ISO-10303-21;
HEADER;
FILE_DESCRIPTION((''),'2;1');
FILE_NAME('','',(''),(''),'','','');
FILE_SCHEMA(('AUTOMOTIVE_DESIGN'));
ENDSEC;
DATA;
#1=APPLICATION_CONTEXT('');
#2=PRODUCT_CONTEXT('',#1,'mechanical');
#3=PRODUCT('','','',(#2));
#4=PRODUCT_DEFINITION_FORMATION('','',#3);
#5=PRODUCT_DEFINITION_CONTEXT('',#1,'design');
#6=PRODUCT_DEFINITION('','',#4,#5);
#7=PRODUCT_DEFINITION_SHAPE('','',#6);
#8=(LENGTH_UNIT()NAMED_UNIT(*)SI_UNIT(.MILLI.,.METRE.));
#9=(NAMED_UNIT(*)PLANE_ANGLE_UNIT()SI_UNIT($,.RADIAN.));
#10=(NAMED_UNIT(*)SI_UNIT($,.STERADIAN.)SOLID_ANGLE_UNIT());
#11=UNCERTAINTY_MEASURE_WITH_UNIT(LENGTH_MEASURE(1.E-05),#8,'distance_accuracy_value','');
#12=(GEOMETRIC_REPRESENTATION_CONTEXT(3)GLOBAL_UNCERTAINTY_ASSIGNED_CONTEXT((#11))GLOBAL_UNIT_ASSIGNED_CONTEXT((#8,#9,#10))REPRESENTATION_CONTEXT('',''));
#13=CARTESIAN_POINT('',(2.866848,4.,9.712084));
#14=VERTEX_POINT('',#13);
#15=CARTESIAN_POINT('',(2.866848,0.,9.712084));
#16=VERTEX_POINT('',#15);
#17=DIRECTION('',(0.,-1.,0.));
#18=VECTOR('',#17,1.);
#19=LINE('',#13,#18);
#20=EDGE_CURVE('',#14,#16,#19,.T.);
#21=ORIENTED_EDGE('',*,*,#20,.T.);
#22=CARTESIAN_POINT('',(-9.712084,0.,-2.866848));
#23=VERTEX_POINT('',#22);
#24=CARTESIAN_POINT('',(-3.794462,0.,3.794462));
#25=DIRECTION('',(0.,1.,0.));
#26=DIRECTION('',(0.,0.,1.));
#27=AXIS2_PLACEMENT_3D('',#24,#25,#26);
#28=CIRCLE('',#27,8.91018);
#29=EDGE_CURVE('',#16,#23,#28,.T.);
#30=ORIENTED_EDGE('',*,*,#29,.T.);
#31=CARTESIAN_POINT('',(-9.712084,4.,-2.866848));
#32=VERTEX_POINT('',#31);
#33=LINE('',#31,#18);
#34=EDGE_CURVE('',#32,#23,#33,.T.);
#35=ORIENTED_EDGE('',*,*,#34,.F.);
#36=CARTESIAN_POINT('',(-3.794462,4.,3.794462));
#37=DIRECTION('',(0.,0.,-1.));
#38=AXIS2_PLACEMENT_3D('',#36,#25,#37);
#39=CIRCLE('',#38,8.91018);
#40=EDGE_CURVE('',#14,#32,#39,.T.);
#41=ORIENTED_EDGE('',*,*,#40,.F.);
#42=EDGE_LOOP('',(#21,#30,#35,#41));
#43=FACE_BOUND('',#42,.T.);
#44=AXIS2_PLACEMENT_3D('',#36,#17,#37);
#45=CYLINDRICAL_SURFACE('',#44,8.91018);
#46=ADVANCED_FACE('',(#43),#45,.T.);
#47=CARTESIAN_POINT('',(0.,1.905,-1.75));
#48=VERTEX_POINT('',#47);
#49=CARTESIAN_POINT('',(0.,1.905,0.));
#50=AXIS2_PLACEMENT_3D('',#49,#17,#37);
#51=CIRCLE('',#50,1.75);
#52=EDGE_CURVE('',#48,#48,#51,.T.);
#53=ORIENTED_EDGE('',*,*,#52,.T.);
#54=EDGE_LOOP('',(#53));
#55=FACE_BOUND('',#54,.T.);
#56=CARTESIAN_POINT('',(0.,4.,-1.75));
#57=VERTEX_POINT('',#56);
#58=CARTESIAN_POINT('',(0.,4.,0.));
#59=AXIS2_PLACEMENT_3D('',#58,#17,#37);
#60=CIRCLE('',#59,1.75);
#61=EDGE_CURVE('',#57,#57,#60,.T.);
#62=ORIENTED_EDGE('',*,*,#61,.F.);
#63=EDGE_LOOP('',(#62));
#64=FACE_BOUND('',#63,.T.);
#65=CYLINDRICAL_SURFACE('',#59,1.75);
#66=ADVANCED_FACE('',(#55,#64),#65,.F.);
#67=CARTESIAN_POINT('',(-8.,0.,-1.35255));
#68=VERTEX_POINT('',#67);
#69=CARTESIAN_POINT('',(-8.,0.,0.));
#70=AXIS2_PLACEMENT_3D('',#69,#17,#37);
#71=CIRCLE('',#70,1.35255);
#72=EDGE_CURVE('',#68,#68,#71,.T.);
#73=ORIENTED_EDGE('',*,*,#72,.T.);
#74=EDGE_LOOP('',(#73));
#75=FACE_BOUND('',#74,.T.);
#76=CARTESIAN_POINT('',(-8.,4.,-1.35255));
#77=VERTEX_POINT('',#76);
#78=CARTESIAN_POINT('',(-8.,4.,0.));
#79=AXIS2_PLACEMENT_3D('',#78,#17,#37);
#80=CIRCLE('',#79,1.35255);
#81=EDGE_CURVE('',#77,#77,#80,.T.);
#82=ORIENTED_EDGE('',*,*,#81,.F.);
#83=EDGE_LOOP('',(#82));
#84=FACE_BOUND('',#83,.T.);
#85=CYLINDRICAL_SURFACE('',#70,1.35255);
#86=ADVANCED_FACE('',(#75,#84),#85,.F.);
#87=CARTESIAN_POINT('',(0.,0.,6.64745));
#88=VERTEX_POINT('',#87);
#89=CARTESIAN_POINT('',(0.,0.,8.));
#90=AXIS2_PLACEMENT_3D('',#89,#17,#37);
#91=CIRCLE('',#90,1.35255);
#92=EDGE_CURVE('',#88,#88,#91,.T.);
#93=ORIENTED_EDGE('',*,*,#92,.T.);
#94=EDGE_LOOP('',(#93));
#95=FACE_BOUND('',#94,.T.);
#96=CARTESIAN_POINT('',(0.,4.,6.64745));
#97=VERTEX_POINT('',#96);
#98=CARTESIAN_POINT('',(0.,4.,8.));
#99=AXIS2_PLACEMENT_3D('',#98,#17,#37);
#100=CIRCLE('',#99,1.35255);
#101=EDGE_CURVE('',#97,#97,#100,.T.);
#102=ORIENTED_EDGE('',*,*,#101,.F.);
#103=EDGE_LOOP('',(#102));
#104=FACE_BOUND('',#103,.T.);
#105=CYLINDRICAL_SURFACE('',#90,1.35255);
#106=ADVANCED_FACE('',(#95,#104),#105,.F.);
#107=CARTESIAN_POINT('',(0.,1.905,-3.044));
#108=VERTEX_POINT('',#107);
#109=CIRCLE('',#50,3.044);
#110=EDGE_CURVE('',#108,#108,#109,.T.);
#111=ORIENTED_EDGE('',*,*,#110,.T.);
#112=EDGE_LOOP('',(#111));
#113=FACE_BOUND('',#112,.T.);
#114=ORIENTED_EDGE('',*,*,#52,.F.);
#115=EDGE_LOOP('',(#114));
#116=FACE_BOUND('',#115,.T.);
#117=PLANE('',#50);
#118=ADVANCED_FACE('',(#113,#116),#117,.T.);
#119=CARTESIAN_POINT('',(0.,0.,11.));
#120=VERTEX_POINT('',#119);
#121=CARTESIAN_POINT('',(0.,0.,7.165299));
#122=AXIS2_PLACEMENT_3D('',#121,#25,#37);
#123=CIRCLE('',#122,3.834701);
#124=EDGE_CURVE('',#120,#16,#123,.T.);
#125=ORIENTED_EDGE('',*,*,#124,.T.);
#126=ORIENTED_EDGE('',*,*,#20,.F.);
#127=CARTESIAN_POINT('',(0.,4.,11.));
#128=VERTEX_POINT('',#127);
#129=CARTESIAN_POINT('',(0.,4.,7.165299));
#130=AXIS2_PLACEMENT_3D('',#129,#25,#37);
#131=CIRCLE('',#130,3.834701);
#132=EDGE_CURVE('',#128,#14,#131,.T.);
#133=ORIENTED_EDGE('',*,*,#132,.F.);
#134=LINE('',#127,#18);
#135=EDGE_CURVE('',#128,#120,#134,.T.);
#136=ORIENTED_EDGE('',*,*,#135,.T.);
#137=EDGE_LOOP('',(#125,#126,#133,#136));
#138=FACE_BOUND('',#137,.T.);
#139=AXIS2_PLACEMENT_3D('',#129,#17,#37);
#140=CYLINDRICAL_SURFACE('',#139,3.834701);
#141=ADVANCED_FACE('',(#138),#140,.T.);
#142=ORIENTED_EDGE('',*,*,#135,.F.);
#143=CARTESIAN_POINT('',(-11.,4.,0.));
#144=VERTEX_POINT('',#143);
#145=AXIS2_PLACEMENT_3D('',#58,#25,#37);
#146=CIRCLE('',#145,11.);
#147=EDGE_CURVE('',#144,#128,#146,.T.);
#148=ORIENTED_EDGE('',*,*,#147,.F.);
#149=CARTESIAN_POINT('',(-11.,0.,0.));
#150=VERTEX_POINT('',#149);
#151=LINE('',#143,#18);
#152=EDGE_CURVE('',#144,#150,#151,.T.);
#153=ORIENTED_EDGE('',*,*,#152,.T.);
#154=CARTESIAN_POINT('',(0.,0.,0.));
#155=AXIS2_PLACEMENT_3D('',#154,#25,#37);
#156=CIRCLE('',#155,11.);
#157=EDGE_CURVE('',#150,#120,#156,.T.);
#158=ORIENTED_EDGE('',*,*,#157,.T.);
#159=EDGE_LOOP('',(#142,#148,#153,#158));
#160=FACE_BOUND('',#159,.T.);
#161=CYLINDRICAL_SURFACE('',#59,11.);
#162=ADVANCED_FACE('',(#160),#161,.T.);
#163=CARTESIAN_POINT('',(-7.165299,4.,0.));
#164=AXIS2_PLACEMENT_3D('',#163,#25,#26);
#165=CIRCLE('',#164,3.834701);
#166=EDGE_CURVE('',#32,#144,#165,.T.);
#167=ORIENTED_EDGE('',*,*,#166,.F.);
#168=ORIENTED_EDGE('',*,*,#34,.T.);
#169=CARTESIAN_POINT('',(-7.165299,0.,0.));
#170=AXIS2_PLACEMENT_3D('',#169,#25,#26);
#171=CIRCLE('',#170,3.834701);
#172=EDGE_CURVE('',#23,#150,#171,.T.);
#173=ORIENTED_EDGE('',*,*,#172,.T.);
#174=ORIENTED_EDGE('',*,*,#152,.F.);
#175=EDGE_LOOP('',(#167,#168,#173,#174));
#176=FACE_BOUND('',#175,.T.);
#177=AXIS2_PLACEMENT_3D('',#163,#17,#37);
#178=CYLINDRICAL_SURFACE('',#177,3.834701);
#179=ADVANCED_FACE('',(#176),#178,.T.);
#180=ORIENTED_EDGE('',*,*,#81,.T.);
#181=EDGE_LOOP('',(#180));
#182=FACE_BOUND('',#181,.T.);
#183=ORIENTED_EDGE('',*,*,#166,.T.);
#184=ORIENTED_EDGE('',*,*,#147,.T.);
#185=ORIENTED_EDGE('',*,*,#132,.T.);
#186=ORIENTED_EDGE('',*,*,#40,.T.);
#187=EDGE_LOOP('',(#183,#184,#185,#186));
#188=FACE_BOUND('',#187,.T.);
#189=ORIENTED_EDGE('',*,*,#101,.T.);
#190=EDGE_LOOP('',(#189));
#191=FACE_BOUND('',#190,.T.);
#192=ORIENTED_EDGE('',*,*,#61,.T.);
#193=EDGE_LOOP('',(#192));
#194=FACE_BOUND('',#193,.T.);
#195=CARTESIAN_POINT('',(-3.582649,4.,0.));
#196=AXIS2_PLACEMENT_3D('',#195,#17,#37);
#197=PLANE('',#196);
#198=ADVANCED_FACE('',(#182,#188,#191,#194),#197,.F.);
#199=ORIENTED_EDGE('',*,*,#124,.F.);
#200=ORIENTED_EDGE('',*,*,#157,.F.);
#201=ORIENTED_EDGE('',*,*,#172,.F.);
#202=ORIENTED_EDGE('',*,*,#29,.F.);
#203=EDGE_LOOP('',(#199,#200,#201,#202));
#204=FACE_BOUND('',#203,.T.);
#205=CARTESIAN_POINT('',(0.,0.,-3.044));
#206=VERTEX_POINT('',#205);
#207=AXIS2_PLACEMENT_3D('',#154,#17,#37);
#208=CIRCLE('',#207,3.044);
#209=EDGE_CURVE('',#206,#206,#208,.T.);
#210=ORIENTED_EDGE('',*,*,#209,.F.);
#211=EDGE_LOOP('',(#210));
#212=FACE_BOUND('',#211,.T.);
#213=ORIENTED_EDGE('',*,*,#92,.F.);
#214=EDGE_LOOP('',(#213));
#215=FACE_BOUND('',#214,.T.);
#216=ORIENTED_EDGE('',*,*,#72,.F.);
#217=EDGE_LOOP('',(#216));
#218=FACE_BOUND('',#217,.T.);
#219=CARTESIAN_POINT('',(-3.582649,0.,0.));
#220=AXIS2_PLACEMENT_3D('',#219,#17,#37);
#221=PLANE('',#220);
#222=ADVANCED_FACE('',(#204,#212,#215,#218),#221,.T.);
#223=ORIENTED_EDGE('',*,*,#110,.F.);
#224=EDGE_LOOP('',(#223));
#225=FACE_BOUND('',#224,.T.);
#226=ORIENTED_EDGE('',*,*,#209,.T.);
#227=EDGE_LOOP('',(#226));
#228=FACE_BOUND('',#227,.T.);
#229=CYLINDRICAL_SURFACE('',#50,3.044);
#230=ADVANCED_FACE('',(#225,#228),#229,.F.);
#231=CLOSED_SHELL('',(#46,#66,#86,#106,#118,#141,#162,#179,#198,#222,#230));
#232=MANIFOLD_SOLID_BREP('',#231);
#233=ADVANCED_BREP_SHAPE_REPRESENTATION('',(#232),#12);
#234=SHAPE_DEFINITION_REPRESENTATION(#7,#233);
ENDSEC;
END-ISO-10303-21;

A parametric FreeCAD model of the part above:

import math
import FreeCAD as App
import Part
import Sketcher
from FreeCAD import Vector
Q = App.Units.Quantity

doc = App.newDocument("Part")
body = doc.addObject("PartDesign::Body", "Body")

sketch1 = body.newObject("Sketcher::SketchObject", "Sketch")
sketch1.AttachmentSupport = (doc.getObject("XZ_Plane"), [""])
sketch1.MapMode = "FlatFace"
sketch1.addGeometry([
    Part.ArcOfCircle(Part.Circle(Vector(-3.8, 3.8, 0), Vector(0, 0, 1), 8.9), math.radians(-45), math.radians(42)),
    Part.ArcOfCircle(Part.Circle(Vector(-3.8, 3.8, 0), Vector(0, 0, 1), 8.9), math.radians(-132), math.radians(-45)),
    Part.ArcOfCircle(Part.Circle(Vector(-7.2, 0, 0), Vector(0, 0, 1), 3.8), math.radians(-180), math.radians(-132)),
    Part.ArcOfCircle(Part.Circle(Vector(0, 0, 0), Vector(0, 0, 1), 11), math.radians(90), math.radians(180)),
    Part.ArcOfCircle(Part.Circle(Vector(0, 7.2, 0), Vector(0, 0, 1), 3.8), math.radians(42), math.radians(90)),
], False)
sketch1.addConstraint([
    Sketcher.Constraint("Tangent", 0, 1, 1, 2),
    Sketcher.Constraint("Tangent", 1, 1, 2, 2),
    Sketcher.Constraint("Tangent", 2, 1, 3, 2),
    Sketcher.Constraint("Tangent", 3, 1, 4, 2),
    Sketcher.Constraint("Tangent", 4, 1, 0, 2),
    Sketcher.Constraint("Coincident", 3, 3, -1, 1),
    Sketcher.Constraint("Equal", 0, 1),
    Sketcher.Constraint("Equal", 2, 4),
    Sketcher.Constraint("PointOnObject", 2, 3, -1),
    Sketcher.Constraint("PointOnObject", 4, 3, -2),
    Sketcher.Constraint("Radius", 3, Q("11 mm")),
    Sketcher.Constraint("Radius", 2, Q("3.834701 mm")),
    Sketcher.Constraint("Radius", 0, Q("8.91018 mm")),
    Sketcher.Constraint("DistanceX", 0, 3, 0, 1, Q("6.300449 mm")),
])
pad1 = body.newObject("PartDesign::Pad", "Pad")
pad1.Profile = sketch1
pad1.Length = 4
pad1.Reversed = True

sketch2 = body.newObject("Sketcher::SketchObject", "Sketch001")
sketch2.AttachmentSupport = (doc.getObject("XZ_Plane"), [""])
sketch2.MapMode = "FlatFace"
sketch2.addGeometry([
    Part.Circle(Vector(-8, 0, 0), Vector(0, 0, 1), 1.4),
    Part.Circle(Vector(0, 8, 0), Vector(0, 0, 1), 1.4),
], False)
sketch2.addConstraint([
    Sketcher.Constraint("Equal", 0, 1),
    Sketcher.Constraint("PointOnObject", 0, 3, -1),
    Sketcher.Constraint("PointOnObject", 1, 3, -2),
    Sketcher.Constraint("DistanceX", 0, 3, -1, 1, Q("8 mm")),
    Sketcher.Constraint("DistanceY", -1, 1, 1, 3, Q("8 mm")),
    Sketcher.Constraint("Diameter", 0, Q("2.7051 mm")),
])
doc.recompute()
hole = body.newObject("PartDesign::Hole", "Hole")
hole.Profile = sketch2
hole.ThreadType = "None"
hole.Diameter = 2.7051
hole.DepthType = "ThroughAll"

sketch3 = body.newObject("Sketcher::SketchObject", "Sketch002")
sketch3.AttachmentSupport = (doc.getObject("XZ_Plane"), [""])
sketch3.MapMode = "FlatFace"
sketch3.addGeometry(Part.Circle(Vector(0, 0, 0), Vector(0, 0, 1), 3), False)
sketch3.addConstraint([
    Sketcher.Constraint("Coincident", 0, 3, -1, 1),
    Sketcher.Constraint("Diameter", 0, Q("6.088 mm")),
])
pocket1 = body.newObject("PartDesign::Pocket", "Pocket")
pocket1.Profile = sketch3
pocket1.Length = 1.905

sketch4 = body.newObject("Sketcher::SketchObject", "Sketch003")
sketch4.AttachmentSupport = (doc.getObject("XZ_Plane"), [""])
sketch4.MapMode = "FlatFace"
sketch4.AttachmentOffset = App.Placement(Vector(0, 0, -1.905), App.Rotation())
sketch4.addGeometry(Part.Circle(Vector(0, 0, 0), Vector(0, 0, 1), 1.8), False)
sketch4.addConstraint([
    Sketcher.Constraint("Coincident", 0, 3, -1, 1),
    Sketcher.Constraint("Diameter", 0, Q("3.5 mm")),
])
pocket2 = body.newObject("PartDesign::Pocket", "Pocket001")
pocket2.Profile = sketch4
pocket2.Type = "ThroughAll"

doc.recompute()
